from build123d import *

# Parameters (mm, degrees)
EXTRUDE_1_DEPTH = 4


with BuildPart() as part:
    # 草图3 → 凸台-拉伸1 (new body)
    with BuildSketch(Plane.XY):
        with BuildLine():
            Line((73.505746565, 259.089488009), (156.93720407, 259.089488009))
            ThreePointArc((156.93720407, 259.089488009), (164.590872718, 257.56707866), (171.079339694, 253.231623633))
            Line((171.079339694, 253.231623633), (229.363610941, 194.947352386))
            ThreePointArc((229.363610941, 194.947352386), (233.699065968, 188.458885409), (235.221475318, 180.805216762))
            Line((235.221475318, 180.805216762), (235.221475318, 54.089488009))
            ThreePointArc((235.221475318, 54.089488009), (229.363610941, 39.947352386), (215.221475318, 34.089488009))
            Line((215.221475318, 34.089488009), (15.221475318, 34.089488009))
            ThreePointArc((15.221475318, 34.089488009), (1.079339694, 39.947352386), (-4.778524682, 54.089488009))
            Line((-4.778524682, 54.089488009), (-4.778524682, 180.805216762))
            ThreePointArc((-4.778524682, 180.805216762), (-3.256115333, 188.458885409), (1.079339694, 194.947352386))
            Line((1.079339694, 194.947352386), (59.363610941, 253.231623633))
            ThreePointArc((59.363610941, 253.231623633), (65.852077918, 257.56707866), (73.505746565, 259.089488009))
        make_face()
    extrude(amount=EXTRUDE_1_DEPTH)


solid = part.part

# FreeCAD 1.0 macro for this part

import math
import FreeCAD as App
import Part
import Sketcher

doc = App.newDocument("Part")
body = doc.addObject("PartDesign::Body", "Body")

sketch1 = body.newObject("Sketcher::SketchObject", "Sketch")
sketch1.AttachmentSupport = (doc.getObject("XY_Plane"), [""])
sketch1.MapMode = "FlatFace"
sketch1.addGeometry([
    Part.LineSegment(App.Vector(157, 259, 0), App.Vector(74, 259, 0)),
    Part.ArcOfCircle(Part.Circle(App.Vector(74, 239, 0), App.Vector(0, 0, 1), 20), math.radians(90), math.radians(135)),
    Part.LineSegment(App.Vector(59, 253, 0), App.Vector(1, 195, 0)),
    Part.ArcOfCircle(Part.Circle(App.Vector(15, 181, 0), App.Vector(0, 0, 1), 20), math.radians(135), math.radians(180)),
    Part.LineSegment(App.Vector(-5, 181, 0), App.Vector(-5, 54, 0)),
    Part.ArcOfCircle(Part.Circle(App.Vector(15, 54, 0), App.Vector(0, 0, 1), 20), math.radians(-180), math.radians(-90)),
    Part.LineSegment(App.Vector(15, 34, 0), App.Vector(215, 34, 0)),
    Part.ArcOfCircle(Part.Circle(App.Vector(215, 54, 0), App.Vector(0, 0, 1), 20), math.radians(-90), math.radians(0)),
    Part.LineSegment(App.Vector(235, 54, 0), App.Vector(235, 181, 0)),
    Part.ArcOfCircle(Part.Circle(App.Vector(215, 181, 0), App.Vector(0, 0, 1), 20), math.radians(0), math.radians(45)),
    Part.LineSegment(App.Vector(229, 195, 0), App.Vector(171, 253, 0)),
    Part.ArcOfCircle(Part.Circle(App.Vector(157, 239, 0), App.Vector(0, 0, 1), 20), math.radians(45), math.radians(90)),
], False)
sketch1.addConstraint([
    Sketcher.Constraint("Tangent", 0, 2, 1, 1),
    Sketcher.Constraint("Tangent", 1, 2, 2, 1),
    Sketcher.Constraint("Tangent", 2, 2, 3, 1),
    Sketcher.Constraint("Tangent", 3, 2, 4, 1),
    Sketcher.Constraint("Tangent", 4, 2, 5, 1),
    Sketcher.Constraint("Tangent", 5, 2, 6, 1),
    Sketcher.Constraint("Tangent", 6, 2, 7, 1),
    Sketcher.Constraint("Tangent", 7, 2, 8, 1),
    Sketcher.Constraint("Tangent", 8, 2, 9, 1),
    Sketcher.Constraint("Tangent", 9, 2, 10, 1),
    Sketcher.Constraint("Tangent", 10, 2, 11, 1),
    Sketcher.Constraint("Tangent", 11, 2, 0, 1),
    Sketcher.Constraint("Horizontal", 0),
    Sketcher.Constraint("Vertical", 4),
    Sketcher.Constraint("Horizontal", 6),
    Sketcher.Constraint("Vertical", 8),
    Sketcher.Constraint("Equal", 1, 3),
    Sketcher.Constraint("Equal", 3, 5),
    Sketcher.Constraint("Equal", 5, 7),
    Sketcher.Constraint("Equal", 7, 9),
    Sketcher.Constraint("Equal", 9, 11),
    Sketcher.Constraint("Perpendicular", 2, 10),
    Sketcher.Constraint("Horizontal", 3, 3, 9, 3),
    Sketcher.Constraint("Horizontal", 2, 2, 9, 2),
    Sketcher.Constraint("Radius", 1, 20.0),
    Sketcher.Constraint("DistanceX", 6, 1, 6, 2, 200.0),
    Sketcher.Constraint("DistanceY", 5, 3, 1, 3, 185.0),
    Sketcher.Constraint("DistanceY", 4, 2, 4, 1, 126.715729),
    Sketcher.Constraint("DistanceY", -1, 1, 1, 3, 239.089488),
    Sketcher.Constraint("DistanceX", -1, 1, 1, 2, 59.363611),
])
pad1 = body.newObject("PartDesign::Pad", "Pad")
pad1.Profile = sketch1
pad1.Length = 4

doc.recompute()
